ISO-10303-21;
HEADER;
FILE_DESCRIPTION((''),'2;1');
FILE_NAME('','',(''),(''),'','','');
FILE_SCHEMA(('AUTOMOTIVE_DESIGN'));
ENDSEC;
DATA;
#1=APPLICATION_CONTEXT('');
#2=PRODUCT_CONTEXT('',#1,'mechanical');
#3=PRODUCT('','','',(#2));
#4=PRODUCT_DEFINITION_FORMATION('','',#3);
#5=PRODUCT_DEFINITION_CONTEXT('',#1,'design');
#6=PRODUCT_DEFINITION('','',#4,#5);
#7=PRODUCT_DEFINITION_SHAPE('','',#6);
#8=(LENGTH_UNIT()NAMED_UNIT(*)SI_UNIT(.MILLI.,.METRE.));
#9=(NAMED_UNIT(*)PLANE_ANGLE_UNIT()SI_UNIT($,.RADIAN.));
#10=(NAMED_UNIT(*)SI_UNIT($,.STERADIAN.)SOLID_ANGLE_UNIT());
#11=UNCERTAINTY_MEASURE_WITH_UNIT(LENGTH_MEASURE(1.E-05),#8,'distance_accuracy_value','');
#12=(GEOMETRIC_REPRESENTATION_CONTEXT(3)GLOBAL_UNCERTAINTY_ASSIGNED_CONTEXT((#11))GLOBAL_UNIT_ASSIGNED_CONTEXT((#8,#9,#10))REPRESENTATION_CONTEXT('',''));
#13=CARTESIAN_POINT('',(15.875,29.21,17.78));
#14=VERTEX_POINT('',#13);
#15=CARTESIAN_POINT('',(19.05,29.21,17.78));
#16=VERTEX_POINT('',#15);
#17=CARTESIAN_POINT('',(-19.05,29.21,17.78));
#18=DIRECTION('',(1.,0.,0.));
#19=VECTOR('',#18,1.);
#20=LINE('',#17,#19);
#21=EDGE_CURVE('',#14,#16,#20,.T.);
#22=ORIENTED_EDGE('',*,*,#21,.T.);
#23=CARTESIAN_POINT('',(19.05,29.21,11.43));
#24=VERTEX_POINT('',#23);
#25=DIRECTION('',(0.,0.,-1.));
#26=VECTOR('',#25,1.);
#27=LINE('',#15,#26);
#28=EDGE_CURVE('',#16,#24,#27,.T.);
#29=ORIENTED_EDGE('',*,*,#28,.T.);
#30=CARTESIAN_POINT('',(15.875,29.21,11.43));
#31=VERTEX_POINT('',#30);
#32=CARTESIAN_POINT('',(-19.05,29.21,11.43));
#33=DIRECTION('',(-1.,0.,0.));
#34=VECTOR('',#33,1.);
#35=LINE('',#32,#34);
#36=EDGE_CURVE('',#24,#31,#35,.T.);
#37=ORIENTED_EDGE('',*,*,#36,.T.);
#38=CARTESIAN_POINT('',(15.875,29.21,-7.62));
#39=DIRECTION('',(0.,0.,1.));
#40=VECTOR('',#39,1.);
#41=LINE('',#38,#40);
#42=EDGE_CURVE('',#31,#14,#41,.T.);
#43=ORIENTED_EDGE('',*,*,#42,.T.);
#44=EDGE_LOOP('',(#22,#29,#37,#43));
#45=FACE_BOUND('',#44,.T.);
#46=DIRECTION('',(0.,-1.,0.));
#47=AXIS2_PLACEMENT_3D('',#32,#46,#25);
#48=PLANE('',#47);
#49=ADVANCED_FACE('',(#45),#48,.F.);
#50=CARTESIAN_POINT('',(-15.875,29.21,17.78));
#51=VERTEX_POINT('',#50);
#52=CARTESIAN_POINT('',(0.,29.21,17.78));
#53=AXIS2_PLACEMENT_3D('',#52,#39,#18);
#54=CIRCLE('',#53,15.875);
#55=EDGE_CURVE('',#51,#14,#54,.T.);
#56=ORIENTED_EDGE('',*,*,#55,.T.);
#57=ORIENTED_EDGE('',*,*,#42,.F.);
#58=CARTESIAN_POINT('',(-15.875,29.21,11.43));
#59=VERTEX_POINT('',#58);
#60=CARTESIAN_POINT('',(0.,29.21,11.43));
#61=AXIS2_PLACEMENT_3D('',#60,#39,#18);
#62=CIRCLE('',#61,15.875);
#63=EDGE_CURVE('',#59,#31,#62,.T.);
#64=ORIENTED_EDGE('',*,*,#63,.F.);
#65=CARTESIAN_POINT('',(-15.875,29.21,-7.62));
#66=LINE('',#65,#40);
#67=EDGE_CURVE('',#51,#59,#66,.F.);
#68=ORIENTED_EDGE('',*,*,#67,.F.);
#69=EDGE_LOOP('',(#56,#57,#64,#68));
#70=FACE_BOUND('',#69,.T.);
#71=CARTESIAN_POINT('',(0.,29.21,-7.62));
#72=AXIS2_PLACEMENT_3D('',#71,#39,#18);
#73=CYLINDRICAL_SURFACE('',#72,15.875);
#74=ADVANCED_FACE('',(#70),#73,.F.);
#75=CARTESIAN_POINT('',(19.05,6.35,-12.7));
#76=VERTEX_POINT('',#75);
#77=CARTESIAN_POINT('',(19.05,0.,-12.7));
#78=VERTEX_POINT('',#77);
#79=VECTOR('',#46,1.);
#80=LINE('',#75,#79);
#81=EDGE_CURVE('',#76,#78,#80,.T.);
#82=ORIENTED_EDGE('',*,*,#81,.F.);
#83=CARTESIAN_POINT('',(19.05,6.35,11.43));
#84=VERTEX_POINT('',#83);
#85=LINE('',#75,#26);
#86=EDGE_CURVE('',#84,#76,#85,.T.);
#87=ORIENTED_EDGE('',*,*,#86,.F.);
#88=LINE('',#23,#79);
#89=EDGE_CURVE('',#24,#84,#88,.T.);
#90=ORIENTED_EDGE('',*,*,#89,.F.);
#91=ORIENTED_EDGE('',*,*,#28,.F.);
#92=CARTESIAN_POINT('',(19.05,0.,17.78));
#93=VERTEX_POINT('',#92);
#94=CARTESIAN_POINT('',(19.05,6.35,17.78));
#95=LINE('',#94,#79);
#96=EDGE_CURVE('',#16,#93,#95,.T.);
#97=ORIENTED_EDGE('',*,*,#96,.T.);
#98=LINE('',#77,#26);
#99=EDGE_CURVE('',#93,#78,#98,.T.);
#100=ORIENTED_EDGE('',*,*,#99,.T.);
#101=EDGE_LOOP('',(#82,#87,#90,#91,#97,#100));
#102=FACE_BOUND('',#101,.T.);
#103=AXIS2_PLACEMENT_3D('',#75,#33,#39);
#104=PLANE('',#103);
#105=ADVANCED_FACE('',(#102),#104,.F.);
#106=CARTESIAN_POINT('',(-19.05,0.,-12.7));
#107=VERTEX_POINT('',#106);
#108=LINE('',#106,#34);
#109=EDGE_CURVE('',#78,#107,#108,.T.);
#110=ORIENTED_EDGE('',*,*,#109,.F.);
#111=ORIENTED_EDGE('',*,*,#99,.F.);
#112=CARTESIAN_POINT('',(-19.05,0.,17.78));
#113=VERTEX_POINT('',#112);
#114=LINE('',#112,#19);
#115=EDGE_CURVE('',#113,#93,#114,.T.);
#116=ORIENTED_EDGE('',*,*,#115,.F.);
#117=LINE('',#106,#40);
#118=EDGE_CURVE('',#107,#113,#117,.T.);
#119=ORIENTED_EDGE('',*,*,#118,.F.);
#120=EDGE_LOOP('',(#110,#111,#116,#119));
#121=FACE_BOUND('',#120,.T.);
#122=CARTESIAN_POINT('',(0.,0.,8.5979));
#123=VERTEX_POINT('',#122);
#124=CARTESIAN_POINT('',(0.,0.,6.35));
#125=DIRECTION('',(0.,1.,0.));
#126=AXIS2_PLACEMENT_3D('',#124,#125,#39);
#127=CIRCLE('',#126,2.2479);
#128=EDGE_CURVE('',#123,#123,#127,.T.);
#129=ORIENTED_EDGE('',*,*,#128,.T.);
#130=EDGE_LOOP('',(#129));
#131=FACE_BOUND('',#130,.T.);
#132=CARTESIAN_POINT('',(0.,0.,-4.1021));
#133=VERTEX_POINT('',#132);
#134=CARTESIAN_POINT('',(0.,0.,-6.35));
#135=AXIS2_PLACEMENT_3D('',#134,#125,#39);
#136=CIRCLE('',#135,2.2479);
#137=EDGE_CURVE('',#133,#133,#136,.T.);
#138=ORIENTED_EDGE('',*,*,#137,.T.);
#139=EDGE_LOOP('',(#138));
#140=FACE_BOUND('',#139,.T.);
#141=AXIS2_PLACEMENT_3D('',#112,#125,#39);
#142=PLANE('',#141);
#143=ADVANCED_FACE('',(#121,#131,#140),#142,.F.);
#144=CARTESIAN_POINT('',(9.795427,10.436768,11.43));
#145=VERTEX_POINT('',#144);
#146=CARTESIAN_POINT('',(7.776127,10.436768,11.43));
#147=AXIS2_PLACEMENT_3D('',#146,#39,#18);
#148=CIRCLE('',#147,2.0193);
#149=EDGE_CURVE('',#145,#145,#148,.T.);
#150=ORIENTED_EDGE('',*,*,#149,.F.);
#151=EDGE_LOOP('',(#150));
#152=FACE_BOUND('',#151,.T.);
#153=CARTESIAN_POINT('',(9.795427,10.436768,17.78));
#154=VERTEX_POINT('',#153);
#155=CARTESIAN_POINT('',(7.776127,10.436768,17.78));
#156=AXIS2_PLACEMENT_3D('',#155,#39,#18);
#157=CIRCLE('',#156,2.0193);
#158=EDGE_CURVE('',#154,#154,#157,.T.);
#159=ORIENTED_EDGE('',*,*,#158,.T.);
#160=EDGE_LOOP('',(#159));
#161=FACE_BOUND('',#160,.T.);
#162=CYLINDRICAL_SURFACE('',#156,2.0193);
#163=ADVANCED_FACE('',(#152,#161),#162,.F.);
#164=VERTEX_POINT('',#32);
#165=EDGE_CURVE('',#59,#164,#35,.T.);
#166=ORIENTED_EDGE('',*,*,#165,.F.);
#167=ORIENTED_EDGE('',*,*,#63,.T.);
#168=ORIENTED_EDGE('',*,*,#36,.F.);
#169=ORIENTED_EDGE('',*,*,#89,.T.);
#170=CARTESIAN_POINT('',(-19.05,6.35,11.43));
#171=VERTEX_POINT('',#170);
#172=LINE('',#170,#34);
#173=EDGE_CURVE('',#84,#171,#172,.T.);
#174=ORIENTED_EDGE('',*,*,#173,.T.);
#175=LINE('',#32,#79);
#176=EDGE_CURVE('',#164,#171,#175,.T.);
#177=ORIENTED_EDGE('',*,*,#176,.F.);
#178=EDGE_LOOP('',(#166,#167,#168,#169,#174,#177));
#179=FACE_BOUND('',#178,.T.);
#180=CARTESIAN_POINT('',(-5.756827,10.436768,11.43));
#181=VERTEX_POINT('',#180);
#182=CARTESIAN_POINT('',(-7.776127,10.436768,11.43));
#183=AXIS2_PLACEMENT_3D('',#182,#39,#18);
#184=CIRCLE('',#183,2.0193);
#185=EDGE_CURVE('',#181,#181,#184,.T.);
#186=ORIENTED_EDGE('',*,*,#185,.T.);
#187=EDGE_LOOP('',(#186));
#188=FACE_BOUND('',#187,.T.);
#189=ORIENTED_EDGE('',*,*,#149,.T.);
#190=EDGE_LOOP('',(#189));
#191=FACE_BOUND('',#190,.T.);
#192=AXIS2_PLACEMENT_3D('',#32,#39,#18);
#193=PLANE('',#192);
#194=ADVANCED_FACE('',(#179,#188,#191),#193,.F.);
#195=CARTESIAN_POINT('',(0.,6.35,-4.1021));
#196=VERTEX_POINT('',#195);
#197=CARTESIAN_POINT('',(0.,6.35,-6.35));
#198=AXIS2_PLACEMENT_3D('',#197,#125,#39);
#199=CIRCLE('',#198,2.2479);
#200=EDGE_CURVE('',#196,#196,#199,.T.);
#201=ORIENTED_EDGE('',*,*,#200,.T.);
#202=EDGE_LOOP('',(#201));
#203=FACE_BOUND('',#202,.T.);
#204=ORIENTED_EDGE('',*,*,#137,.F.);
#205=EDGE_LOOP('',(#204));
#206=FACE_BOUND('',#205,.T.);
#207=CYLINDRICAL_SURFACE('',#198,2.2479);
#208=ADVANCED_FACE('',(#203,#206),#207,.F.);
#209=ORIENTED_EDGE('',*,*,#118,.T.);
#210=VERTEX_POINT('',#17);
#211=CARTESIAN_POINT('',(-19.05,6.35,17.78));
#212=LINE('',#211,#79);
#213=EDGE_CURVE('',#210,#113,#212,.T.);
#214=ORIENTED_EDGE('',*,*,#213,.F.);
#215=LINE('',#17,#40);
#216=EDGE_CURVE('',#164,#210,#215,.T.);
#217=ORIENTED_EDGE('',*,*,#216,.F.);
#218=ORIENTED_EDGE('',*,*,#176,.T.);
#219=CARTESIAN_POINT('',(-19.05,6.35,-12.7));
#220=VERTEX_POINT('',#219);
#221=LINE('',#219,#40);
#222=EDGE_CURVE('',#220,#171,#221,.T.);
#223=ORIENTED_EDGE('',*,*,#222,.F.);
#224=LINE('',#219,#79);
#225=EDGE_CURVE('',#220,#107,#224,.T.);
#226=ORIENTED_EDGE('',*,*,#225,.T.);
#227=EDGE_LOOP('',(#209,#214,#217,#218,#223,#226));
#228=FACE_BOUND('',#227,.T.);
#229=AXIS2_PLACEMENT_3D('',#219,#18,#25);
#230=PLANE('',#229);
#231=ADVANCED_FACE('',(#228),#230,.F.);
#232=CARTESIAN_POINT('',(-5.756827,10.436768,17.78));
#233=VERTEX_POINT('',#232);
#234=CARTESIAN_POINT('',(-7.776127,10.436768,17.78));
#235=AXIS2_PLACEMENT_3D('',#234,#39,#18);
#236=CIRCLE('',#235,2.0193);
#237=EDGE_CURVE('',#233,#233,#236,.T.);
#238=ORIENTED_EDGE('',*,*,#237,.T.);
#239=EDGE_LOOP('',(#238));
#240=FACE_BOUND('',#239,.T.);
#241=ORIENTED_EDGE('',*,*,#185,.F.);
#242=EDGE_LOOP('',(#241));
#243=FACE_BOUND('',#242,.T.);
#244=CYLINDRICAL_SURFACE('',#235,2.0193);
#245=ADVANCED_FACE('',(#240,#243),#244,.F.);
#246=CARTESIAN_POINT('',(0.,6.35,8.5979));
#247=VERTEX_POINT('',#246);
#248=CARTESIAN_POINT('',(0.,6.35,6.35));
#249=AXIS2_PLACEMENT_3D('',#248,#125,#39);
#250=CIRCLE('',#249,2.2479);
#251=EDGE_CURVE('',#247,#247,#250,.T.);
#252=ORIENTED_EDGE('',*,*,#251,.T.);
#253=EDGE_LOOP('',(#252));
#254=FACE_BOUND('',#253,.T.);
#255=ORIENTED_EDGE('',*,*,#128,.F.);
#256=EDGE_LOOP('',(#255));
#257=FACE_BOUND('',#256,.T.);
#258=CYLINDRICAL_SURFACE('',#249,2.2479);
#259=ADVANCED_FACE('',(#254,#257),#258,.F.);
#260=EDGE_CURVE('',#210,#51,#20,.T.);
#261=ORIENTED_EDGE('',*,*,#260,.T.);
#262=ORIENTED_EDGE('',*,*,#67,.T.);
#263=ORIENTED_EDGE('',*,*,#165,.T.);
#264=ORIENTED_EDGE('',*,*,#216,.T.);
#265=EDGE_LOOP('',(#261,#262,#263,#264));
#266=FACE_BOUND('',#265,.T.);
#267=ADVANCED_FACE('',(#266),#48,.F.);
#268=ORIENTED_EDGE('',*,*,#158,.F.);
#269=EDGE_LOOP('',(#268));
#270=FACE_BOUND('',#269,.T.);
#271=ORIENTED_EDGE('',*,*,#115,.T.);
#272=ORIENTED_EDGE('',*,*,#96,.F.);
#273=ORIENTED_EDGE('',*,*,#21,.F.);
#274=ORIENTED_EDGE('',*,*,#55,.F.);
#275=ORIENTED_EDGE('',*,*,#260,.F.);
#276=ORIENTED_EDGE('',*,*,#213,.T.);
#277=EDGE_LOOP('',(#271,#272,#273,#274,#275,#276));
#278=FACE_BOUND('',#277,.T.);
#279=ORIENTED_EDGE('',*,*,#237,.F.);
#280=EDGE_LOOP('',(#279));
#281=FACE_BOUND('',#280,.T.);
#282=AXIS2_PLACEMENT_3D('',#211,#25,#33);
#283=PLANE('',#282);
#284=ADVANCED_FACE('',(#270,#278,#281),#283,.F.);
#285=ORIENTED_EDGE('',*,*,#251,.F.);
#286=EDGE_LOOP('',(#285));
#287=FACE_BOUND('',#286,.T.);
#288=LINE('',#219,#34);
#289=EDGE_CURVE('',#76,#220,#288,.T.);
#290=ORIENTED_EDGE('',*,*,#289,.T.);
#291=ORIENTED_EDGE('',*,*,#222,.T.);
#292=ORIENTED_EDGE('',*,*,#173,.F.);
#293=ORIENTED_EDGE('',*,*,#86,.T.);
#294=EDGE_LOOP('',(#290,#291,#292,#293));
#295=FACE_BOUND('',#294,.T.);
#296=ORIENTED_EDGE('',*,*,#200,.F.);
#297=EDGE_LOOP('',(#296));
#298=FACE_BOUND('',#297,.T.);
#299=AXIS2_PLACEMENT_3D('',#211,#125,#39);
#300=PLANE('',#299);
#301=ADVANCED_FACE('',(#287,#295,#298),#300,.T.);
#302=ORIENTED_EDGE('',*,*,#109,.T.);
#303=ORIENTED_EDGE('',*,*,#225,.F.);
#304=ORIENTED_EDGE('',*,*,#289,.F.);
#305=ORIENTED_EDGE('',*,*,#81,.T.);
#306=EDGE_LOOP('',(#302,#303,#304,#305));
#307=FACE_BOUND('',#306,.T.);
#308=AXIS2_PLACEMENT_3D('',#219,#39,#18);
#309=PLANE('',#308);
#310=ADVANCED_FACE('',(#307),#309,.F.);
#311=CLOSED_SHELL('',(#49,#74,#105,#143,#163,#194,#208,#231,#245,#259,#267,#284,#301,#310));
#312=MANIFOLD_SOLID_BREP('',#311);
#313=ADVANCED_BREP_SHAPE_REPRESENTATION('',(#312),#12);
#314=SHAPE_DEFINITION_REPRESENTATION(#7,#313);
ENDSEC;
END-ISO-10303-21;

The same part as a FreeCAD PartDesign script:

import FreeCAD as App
import Part
import Sketcher

V = App.Vector
Q = App.Units.Quantity

doc = App.newDocument("Part")
body = doc.addObject("PartDesign::Body", "Body")

sketch1 = body.newObject("Sketcher::SketchObject", "Sketch")
sketch1.AttachmentSupport = (doc.getObject("XZ_Plane"), [""])
sketch1.MapMode = "FlatFace"
sketch1.addGeometry(Part.LineSegment(V(-19, -13, 0), V(-19, 18, 0)), False)
sketch1.addGeometry(Part.LineSegment(V(-19, 18, 0), V(19, 18, 0)), False)
sketch1.addGeometry(Part.LineSegment(V(19, 18, 0), V(19, -13, 0)), False)
sketch1.addGeometry(Part.LineSegment(V(19, -13, 0), V(-19, -13, 0)), False)
sketch1.addConstraint(Sketcher.Constraint("Coincident", 0, 2, 1, 1))
sketch1.addConstraint(Sketcher.Constraint("Coincident", 1, 2, 2, 1))
sketch1.addConstraint(Sketcher.Constraint("Coincident", 2, 2, 3, 1))
sketch1.addConstraint(Sketcher.Constraint("Coincident", 3, 2, 0, 1))
sketch1.addConstraint(Sketcher.Constraint("Vertical", 0))
sketch1.addConstraint(Sketcher.Constraint("Horizontal", 1))
sketch1.addConstraint(Sketcher.Constraint("Vertical", 2))
sketch1.addConstraint(Sketcher.Constraint("Horizontal", 3))
sketch1.addConstraint(Sketcher.Constraint("DistanceX", 1, 1, 1, 2, Q("1.5 in")))
sketch1.addConstraint(Sketcher.Constraint("DistanceY", 0, 1, 0, 2, Q("1.2 in")))
sketch1.addConstraint(Sketcher.Constraint("DistanceY", -1, 1, 0, 2, Q("0.7 in")))
sketch1.addConstraint(Sketcher.Constraint("DistanceX", 0, 2, -1, 1, Q("0.75 in")))
pad1 = body.newObject("PartDesign::Pad", "Pad")
pad1.Profile = sketch1
pad1.Length = Q("0.25 in")
pad1.Reversed = True

sketch2 = body.newObject("Sketcher::SketchObject", "Sketch001")
sketch2.AttachmentSupport = (doc.getObject("XZ_Plane"), [""])
sketch2.MapMode = "FlatFace"
sketch2.AttachmentOffset = App.Placement(V(0, 0, -0.25 * 25.4), App.Rotation())
sketch2.addGeometry(Part.LineSegment(V(19, 18, 0), V(19, 11, 0)), False)
sketch2.addGeometry(Part.LineSegment(V(19, 11, 0), V(-19, 11, 0)), False)
sketch2.addGeometry(Part.LineSegment(V(-19, 11, 0), V(-19, 18, 0)), False)
sketch2.addGeometry(Part.LineSegment(V(-19, 18, 0), V(19, 18, 0)), False)
sketch2.addConstraint(Sketcher.Constraint("Coincident", 0, 2, 1, 1))
sketch2.addConstraint(Sketcher.Constraint("Coincident", 1, 2, 2, 1))
sketch2.addConstraint(Sketcher.Constraint("Coincident", 2, 2, 3, 1))
sketch2.addConstraint(Sketcher.Constraint("Coincident", 3, 2, 0, 1))
sketch2.addConstraint(Sketcher.Constraint("Vertical", 0))
sketch2.addConstraint(Sketcher.Constraint("Horizontal", 1))
sketch2.addConstraint(Sketcher.Constraint("Vertical", 2))
sketch2.addConstraint(Sketcher.Constraint("Horizontal", 3))
sketch2.addConstraint(Sketcher.Constraint("DistanceX", 1, 2, 1, 1, Q("1.5 in")))
sketch2.addConstraint(Sketcher.Constraint("DistanceY", 0, 2, 0, 1, Q("0.25 in")))
sketch2.addConstraint(Sketcher.Constraint("DistanceY", -1, 1, 2, 2, Q("0.7 in")))
sketch2.addConstraint(Sketcher.Constraint("DistanceX", -1, 1, 0, 2, Q("0.75 in")))
pad2 = body.newObject("PartDesign::Pad", "Pad001")
pad2.Profile = sketch2
pad2.Length = Q("0.9 in")
pad2.Reversed = True

sketch3 = body.newObject("Sketcher::SketchObject", "Sketch002")
sketch3.AttachmentSupport = (doc.getObject("XZ_Plane"), [""])
sketch3.MapMode = "FlatFace"
sketch3.AttachmentOffset = App.Placement(V(0, 0, -0.25 * 25.4), App.Rotation())
sketch3.addGeometry(Part.Circle(V(0, 6.3, 0), V(0, 0, 1), 2.2), False)
sketch3.addGeometry(Part.Circle(V(0, -6.3, 0), V(0, 0, 1), 2.2), False)
sketch3.addConstraint(Sketcher.Constraint("Equal", 0, 1))
sketch3.addConstraint(Sketcher.Constraint("Symmetric", 0, 3, 1, 3, -1, 1))
sketch3.addConstraint(Sketcher.Constraint("PointOnObject", 0, 3, -2))
sketch3.addConstraint(Sketcher.Constraint("Diameter", 0, Q("0.177 in")))
sketch3.addConstraint(Sketcher.Constraint("DistanceY", 1, 3, 0, 3, Q("0.5 in")))
doc.recompute()
hole = body.newObject("PartDesign::Hole", "Hole")
hole.Profile = sketch3
hole.ThreadType = "None"
hole.Diameter = Q("0.177 in")
hole.DepthType = "Dimension"
hole.Depth = Q("2.3 in")
hole.DrillPoint = "Angled"
hole.DrillPointAngle = 118
hole.Reversed = True

sketch4 = body.newObject("Sketcher::SketchObject", "Sketch003")
sketch4.AttachmentSupport = (doc.getObject("XY_Plane"), [""])
sketch4.MapMode = "FlatFace"
sketch4.AttachmentOffset = App.Placement(V(0, 0, 0.7 * 25.4), App.Rotation())
sketch4.addGeometry(Part.Circle(V(0, 29, 0), V(0, 0, 1), 16), False)
sketch4.addConstraint(Sketcher.Constraint("PointOnObject", 0, 3, -2))
sketch4.addConstraint(Sketcher.Constraint("Diameter", 0, Q("1.25 in")))
sketch4.addConstraint(Sketcher.Constraint("DistanceY", -1, 1, 0, 3, Q("1.15 in")))
pocket1 = body.newObject("PartDesign::Pocket", "Pocket")
pocket1.Profile = sketch4
pocket1.Length = Q("1 in")

sketch5 = body.newObject("Sketcher::SketchObject", "Sketch004")
sketch5.AttachmentSupport = (doc.getObject("XY_Plane"), [""])
sketch5.MapMode = "FlatFace"
sketch5.AttachmentOffset = App.Placement(V(0, 0, 0.7 * 25.4), App.Rotation())
sketch5.addGeometry(Part.Circle(V(7.8, 10.4, 0), V(0, 0, 1), 2), False)
sketch5.addConstraint(Sketcher.Constraint("Diameter", 0, Q("0.159 in")))
sketch5.addConstraint(Sketcher.Constraint("DistanceX", -1, 1, 0, 3, 7.776127))
sketch5.addConstraint(Sketcher.Constraint("DistanceY", -1, 1, 0, 3, 10.436768))
doc.recompute()
hole2 = body.newObject("PartDesign::Hole", "Hole001")
hole2.Profile = sketch5
hole2.ThreadType = "None"
hole2.Diameter = Q("0.159 in")
hole2.DepthType = "ThroughAll"
doc.recompute()

datumline = body.newObject("PartDesign::Line", "DatumLine")
datumline.Placement = App.Placement(V(0, 29.21, 0), App.Rotation(V(0, 0, 1), V(0, 0, -1)))
polarpattern = body.newObject("PartDesign::PolarPattern", "PolarPattern")
polarpattern.Originals = [hole2]
polarpattern.Axis = (datumline, [""])
polarpattern.Angle = 45
polarpattern.Occurrences = 2
body.Tip = polarpattern

doc.recompute()
